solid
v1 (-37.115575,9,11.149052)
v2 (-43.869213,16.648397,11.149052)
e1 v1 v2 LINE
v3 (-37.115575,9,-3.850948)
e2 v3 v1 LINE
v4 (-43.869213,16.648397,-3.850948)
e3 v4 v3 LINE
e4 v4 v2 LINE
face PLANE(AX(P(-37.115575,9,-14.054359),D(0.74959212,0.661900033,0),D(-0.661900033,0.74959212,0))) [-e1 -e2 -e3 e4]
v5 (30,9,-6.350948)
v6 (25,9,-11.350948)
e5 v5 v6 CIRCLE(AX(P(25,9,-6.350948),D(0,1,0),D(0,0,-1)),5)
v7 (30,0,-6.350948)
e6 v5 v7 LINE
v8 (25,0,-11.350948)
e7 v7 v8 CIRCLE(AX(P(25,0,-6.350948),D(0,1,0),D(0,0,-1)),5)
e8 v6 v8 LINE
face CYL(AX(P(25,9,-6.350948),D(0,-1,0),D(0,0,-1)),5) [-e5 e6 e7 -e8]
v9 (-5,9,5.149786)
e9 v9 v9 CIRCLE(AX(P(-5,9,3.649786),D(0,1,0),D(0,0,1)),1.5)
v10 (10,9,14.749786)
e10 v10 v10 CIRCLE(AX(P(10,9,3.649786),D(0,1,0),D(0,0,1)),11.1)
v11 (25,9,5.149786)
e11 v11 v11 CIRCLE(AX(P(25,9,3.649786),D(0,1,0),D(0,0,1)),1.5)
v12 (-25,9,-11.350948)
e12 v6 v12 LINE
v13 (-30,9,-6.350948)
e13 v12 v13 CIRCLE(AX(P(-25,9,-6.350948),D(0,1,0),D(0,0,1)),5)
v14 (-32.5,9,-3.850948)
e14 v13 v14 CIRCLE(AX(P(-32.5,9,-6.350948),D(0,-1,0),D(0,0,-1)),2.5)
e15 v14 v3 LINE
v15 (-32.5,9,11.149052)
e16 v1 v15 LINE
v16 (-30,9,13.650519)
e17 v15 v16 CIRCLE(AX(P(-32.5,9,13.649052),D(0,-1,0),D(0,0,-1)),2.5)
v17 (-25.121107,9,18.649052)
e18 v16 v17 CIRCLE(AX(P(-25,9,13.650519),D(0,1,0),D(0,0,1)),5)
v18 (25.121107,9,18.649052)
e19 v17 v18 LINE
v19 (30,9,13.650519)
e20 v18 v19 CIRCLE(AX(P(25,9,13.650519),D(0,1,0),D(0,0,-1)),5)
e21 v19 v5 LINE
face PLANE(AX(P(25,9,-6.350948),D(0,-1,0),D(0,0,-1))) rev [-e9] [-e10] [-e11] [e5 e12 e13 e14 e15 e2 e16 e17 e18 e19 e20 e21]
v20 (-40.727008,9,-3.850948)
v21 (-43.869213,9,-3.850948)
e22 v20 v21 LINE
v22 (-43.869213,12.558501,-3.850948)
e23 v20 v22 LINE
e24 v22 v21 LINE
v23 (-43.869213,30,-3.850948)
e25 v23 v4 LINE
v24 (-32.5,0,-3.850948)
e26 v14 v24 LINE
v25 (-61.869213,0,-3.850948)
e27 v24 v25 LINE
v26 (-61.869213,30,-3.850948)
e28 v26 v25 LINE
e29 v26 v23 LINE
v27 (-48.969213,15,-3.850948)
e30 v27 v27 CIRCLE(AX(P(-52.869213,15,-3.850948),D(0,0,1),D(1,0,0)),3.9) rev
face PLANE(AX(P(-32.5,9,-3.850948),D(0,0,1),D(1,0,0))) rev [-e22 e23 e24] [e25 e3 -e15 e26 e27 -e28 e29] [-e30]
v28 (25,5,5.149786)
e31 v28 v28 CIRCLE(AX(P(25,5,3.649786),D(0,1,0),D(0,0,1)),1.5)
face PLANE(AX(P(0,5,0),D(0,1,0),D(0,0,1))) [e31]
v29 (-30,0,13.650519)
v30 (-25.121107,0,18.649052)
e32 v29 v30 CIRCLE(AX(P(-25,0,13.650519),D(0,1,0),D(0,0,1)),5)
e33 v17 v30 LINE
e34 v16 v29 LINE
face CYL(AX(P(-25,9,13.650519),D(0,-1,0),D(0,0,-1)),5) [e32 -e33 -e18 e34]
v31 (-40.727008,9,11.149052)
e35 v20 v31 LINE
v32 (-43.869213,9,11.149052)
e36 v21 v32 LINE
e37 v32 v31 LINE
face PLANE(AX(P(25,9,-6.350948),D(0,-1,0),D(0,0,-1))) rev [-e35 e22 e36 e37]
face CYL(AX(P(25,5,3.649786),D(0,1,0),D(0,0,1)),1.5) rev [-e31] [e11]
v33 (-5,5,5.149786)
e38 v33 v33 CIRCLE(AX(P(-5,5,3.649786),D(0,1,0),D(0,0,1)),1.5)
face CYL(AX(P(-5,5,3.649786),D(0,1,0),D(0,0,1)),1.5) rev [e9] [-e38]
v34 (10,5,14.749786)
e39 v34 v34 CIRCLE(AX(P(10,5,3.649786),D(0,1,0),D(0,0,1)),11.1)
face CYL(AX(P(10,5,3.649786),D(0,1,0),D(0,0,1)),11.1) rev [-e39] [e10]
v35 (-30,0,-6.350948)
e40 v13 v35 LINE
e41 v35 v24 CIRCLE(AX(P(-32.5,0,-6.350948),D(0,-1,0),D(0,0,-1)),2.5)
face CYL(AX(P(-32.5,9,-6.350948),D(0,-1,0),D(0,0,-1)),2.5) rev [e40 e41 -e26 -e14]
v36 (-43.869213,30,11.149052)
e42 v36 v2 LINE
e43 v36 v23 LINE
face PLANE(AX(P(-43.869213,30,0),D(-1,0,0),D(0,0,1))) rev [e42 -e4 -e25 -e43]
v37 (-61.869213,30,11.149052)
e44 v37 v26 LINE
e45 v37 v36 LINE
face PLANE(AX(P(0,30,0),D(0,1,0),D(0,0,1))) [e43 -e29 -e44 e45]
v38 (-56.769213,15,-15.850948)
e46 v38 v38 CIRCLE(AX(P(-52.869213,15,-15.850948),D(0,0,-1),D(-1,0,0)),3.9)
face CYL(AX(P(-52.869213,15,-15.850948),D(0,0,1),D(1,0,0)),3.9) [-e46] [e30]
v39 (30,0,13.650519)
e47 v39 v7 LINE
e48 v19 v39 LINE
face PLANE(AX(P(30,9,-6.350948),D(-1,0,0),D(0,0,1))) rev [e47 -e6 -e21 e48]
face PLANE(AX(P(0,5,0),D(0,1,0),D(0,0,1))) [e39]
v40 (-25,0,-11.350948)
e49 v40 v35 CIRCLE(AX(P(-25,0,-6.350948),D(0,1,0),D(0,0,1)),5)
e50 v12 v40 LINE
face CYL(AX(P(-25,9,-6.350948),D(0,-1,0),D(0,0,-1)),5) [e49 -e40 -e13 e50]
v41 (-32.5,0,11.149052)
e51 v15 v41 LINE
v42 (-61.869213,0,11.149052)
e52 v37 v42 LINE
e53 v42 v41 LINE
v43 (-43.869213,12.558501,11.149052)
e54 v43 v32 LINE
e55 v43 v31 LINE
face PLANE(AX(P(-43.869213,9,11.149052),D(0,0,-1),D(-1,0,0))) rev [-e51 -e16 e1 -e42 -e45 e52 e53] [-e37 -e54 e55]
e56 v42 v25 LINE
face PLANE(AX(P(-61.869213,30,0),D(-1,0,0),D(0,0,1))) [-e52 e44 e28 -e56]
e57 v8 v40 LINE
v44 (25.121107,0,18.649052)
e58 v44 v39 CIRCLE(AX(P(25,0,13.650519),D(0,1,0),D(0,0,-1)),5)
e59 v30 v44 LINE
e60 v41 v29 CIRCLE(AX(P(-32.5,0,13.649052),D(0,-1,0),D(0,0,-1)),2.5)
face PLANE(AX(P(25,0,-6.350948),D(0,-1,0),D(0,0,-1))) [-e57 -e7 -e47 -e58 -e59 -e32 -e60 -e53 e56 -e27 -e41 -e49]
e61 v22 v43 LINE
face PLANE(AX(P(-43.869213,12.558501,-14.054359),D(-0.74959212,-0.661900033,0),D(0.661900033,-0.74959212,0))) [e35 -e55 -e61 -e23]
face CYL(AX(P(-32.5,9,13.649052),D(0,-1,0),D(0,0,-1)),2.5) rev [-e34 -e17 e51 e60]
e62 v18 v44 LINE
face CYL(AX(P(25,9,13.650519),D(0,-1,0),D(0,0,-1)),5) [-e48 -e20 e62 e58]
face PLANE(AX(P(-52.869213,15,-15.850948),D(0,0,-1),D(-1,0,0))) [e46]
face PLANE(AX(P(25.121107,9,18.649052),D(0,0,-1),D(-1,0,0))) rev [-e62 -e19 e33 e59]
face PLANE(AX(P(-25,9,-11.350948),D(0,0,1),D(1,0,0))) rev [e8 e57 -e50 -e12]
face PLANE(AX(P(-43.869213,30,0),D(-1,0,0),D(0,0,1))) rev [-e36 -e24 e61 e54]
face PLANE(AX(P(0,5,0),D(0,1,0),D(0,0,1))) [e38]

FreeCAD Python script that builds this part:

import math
import FreeCAD as App
import Part
import Sketcher

V = App.Vector
Q = App.Units.Quantity


def add_polygon(sketch, points):
    """Adds a closed chain of lines whose ends are joined by coincident constraints."""
    first, n = sketch.GeometryCount, len(points)
    for a, b in zip(points, points[1:] + points[:1]):
        sketch.addGeometry(Part.LineSegment(App.Vector(*a, 0), App.Vector(*b, 0)), False)
    for i in range(n):
        sketch.addConstraint(Sketcher.Constraint("Coincident", first + i, 2, first + (i + 1) % n, 1))

doc = App.newDocument("Part")
body = doc.addObject("PartDesign::Body", "Body")

# Sketch on XZ plane
sketch1 = body.newObject("Sketcher::SketchObject", "Sketch")
sketch1.AttachmentSupport = (doc.getObject("XZ_Plane"), [""])
sketch1.MapMode = "FlatFace"
sketch1.addGeometry([
    Part.LineSegment(V(25, -11.4, 0), V(-25, -11.4, 0)),  # 0
    Part.ArcOfCircle(Part.Circle(V(-25, -6.4, 0), V(0, 0, 1), 5), math.radians(180), math.radians(270)),  # 1
    Part.ArcOfCircle(Part.Circle(V(-32.5, -6.4, 0), V(0, 0, 1), 2.5), math.radians(0), math.radians(90)),  # 2
    Part.LineSegment(V(-32.5, -3.9, 0), V(-43.9, -3.9, 0)),  # 3
    Part.LineSegment(V(-43.9, -3.9, 0), V(-43.9, 11.1, 0)),  # 4
    Part.LineSegment(V(-43.9, 11.1, 0), V(-32.5, 11.1, 0)),  # 5
    Part.ArcOfCircle(Part.Circle(V(-32.5, 13.6, 0), V(0, 0, 1), 2.5), math.radians(-90), math.radians(0)),  # 6
    Part.ArcOfCircle(Part.Circle(V(-25, 13.7, 0), V(0, 0, 1), 5), math.radians(91), math.radians(180)),  # 7
    Part.LineSegment(V(-25.1, 18.6, 0), V(25.1, 18.6, 0)),  # 8
    Part.ArcOfCircle(Part.Circle(V(25, 13.7, 0), V(0, 0, 1), 5), math.radians(0), math.radians(89)),  # 9
    Part.LineSegment(V(30, 13.7, 0), V(30, -6.4, 0)),  # 10
    Part.ArcOfCircle(Part.Circle(V(25, -6.4, 0), V(0, 0, 1), 5), math.radians(-90), math.radians(0)),  # 11
], False)
sketch1.addConstraint([
    Sketcher.Constraint("Tangent", 0, 2, 1, 2),
    Sketcher.Constraint("Tangent", 1, 1, 2, 1),
    Sketcher.Constraint("Tangent", 2, 2, 3, 1),
    Sketcher.Constraint("Coincident", 3, 2, 4, 1),
    Sketcher.Constraint("Coincident", 4, 2, 5, 1),
    Sketcher.Constraint("Tangent", 5, 2, 6, 1),
    Sketcher.Constraint("Coincident", 6, 2, 7, 2),
    Sketcher.Constraint("Coincident", 7, 1, 8, 1),
    Sketcher.Constraint("Coincident", 8, 2, 9, 2),
    Sketcher.Constraint("Tangent", 9, 1, 10, 1),
    Sketcher.Constraint("Tangent", 10, 2, 11, 2),
    Sketcher.Constraint("Tangent", 11, 1, 0, 1),
    Sketcher.Constraint("Horizontal", 0),
    Sketcher.Constraint("Horizontal", 3),
    Sketcher.Constraint("Vertical", 4),
    Sketcher.Constraint("Horizontal", 5),
    Sketcher.Constraint("Horizontal", 8),
    Sketcher.Constraint("Vertical", 10),
    Sketcher.Constraint("Equal", 2, 6),
    Sketcher.Constraint("Equal", 1, 7),
    Sketcher.Constraint("Equal", 7, 9),
    Sketcher.Constraint("Equal", 9, 11),
    Sketcher.Constraint("Symmetric", 7, 3, 9, 3, -2),
    Sketcher.Constraint("Symmetric", 1, 1, 10, 2, -2),
    Sketcher.Constraint("Horizontal", 9, 3, 6, 2),
    Sketcher.Constraint("Radius", 1, Q("5 mm")),
    Sketcher.Constraint("Radius", 2, Q("2.5 mm")),
    Sketcher.Constraint("DistanceX", 0, 2, 0, 1, Q("50 mm")),
    Sketcher.Constraint("DistanceY", 4, 1, 4, 2, Q("15 mm")),
    Sketcher.Constraint("DistanceY", 6, 3, 7, 1, Q("5 mm")),
    Sketcher.Constraint("DistanceX", 3, 2, 3, 1, Q("11.369213 mm")),
    Sketcher.Constraint("DistanceX", 8, 1, 8, 2, Q("50.242215 mm")),
    Sketcher.Constraint("DistanceY", -1, 1, 7, 3, Q("13.650519 mm")),
])
pad1 = body.newObject("PartDesign::Pad", "Pad")
pad1.Profile = sketch1
pad1.Length = 9
pad1.Reversed = True

# Sketch on XZ plane
sketch2 = body.newObject("Sketcher::SketchObject", "Sketch001")
sketch2.AttachmentSupport = (doc.getObject("XZ_Plane"), [""])
sketch2.MapMode = "FlatFace"
sketch2.AttachmentOffset = App.Placement(V(0, 0, -9), App.Rotation())
sketch2.addGeometry([
    Part.Circle(V(10, 3.6, 0), V(0, 0, 1), 11.1),
    Part.Circle(V(-5, 3.6, 0), V(0, 0, 1), 1.5),
    Part.Circle(V(25, 3.6, 0), V(0, 0, 1), 1.5),
], False)
sketch2.addConstraint([
    Sketcher.Constraint("Equal", 1, 2),
    Sketcher.Constraint("Horizontal", 0, 3, 1, 3),
    Sketcher.Constraint("Horizontal", 1, 3, 2, 3),
    Sketcher.Constraint("Diameter", 1, Q("3 mm")),
    Sketcher.Constraint("Diameter", 0, Q("22.2 mm")),
    Sketcher.Constraint("DistanceX", -1, 1, 0, 3, Q("10 mm")),
    Sketcher.Constraint("DistanceX", 1, 3, -1, 1, Q("5 mm")),
    Sketcher.Constraint("DistanceX", -1, 1, 2, 3, Q("25 mm")),
    Sketcher.Constraint("DistanceY", -1, 1, 0, 3, Q("3.649786 mm")),
])
pocket1 = body.newObject("PartDesign::Pocket", "Pocket")
pocket1.Profile = sketch2
pocket1.Length = 4
pocket1.Reversed = True

# Sketch on XZ plane
sketch3 = body.newObject("Sketcher::SketchObject", "Sketch002")
sketch3.AttachmentSupport = (doc.getObject("XZ_Plane"), [""])
sketch3.MapMode = "FlatFace"
add_polygon(sketch3, [(-44, 11), (-44, -4), (-62, -4), (-62, 11)])  # lines 0-3
sketch3.addConstraint([
    Sketcher.Constraint("Vertical", 0),
    Sketcher.Constraint("Horizontal", 1),
    Sketcher.Constraint("Vertical", 2),
    Sketcher.Constraint("Horizontal", 3),
    Sketcher.Constraint("DistanceX", 1, 2, 1, 1, Q("18 mm")),
    Sketcher.Constraint("DistanceY", 0, 2, 0, 1, Q("15 mm")),
    Sketcher.Constraint("DistanceX", 0, 2, -1, 1, Q("43.869213 mm")),
    Sketcher.Constraint("DistanceY", 0, 2, -1, 1, Q("3.850948 mm")),
])
pad2 = body.newObject("PartDesign::Pad", "Pad001")
pad2.Profile = sketch3
pad2.Length = 30
pad2.Reversed = True

# Sketch on XY plane
sketch4 = body.newObject("Sketcher::SketchObject", "Sketch003")
sketch4.AttachmentSupport = (doc.getObject("XY_Plane"), [""])
sketch4.MapMode = "FlatFace"
sketch4.AttachmentOffset = App.Placement(V(0, 0, 11.149052), App.Rotation())
add_polygon(sketch4, [(-43.9, 12.6), (-40.7, 9), (-37.1, 9), (-43.9, 16.6)])  # lines 0-3
sketch4.addConstraint([
    Sketcher.Constraint("Horizontal", 1),
    Sketcher.Constraint("Vertical", 3),
    Sketcher.Constraint("Parallel", 0, 2),
    Sketcher.Constraint("DistanceY", -1, 1, 0, 2, Q("9 mm")),
    Sketcher.Constraint("DistanceY", -1, 1, 3, 2, Q("12.558501 mm")),
    Sketcher.Constraint("Distance", 0, Q("4.74725 mm")),
    Sketcher.Constraint("Distance", 2, Q("10.203411 mm")),
    Sketcher.Constraint("DistanceX", 0, 2, -1, 1, Q("40.727008 mm")),
])
pad3 = body.newObject("PartDesign::Pad", "Pad002")
pad3.Profile = sketch4
pad3.Length = 15
pad3.Reversed = True

# Sketch on XY plane
sketch5 = body.newObject("Sketcher::SketchObject", "Sketch004")
sketch5.AttachmentSupport = (doc.getObject("XY_Plane"), [""])
sketch5.MapMode = "FlatFace"
sketch5.AttachmentOffset = App.Placement(V(0, 0, -3.850948), App.Rotation())
sketch5.addGeometry(Part.Circle(V(-52.9, 15, 0), V(0, 0, 1), 3.9), False)
sketch5.addConstraint([
    Sketcher.Constraint("Diameter", 0, Q("7.8 mm")),
    Sketcher.Constraint("DistanceY", -1, 1, 0, 3, Q("15 mm")),
    Sketcher.Constraint("DistanceX", 0, 3, -1, 1, Q("52.869213 mm")),
])
pad4 = body.newObject("PartDesign::Pad", "Pad003")
pad4.Profile = sketch5
pad4.Length = 12
pad4.Reversed = True

doc.recompute()
